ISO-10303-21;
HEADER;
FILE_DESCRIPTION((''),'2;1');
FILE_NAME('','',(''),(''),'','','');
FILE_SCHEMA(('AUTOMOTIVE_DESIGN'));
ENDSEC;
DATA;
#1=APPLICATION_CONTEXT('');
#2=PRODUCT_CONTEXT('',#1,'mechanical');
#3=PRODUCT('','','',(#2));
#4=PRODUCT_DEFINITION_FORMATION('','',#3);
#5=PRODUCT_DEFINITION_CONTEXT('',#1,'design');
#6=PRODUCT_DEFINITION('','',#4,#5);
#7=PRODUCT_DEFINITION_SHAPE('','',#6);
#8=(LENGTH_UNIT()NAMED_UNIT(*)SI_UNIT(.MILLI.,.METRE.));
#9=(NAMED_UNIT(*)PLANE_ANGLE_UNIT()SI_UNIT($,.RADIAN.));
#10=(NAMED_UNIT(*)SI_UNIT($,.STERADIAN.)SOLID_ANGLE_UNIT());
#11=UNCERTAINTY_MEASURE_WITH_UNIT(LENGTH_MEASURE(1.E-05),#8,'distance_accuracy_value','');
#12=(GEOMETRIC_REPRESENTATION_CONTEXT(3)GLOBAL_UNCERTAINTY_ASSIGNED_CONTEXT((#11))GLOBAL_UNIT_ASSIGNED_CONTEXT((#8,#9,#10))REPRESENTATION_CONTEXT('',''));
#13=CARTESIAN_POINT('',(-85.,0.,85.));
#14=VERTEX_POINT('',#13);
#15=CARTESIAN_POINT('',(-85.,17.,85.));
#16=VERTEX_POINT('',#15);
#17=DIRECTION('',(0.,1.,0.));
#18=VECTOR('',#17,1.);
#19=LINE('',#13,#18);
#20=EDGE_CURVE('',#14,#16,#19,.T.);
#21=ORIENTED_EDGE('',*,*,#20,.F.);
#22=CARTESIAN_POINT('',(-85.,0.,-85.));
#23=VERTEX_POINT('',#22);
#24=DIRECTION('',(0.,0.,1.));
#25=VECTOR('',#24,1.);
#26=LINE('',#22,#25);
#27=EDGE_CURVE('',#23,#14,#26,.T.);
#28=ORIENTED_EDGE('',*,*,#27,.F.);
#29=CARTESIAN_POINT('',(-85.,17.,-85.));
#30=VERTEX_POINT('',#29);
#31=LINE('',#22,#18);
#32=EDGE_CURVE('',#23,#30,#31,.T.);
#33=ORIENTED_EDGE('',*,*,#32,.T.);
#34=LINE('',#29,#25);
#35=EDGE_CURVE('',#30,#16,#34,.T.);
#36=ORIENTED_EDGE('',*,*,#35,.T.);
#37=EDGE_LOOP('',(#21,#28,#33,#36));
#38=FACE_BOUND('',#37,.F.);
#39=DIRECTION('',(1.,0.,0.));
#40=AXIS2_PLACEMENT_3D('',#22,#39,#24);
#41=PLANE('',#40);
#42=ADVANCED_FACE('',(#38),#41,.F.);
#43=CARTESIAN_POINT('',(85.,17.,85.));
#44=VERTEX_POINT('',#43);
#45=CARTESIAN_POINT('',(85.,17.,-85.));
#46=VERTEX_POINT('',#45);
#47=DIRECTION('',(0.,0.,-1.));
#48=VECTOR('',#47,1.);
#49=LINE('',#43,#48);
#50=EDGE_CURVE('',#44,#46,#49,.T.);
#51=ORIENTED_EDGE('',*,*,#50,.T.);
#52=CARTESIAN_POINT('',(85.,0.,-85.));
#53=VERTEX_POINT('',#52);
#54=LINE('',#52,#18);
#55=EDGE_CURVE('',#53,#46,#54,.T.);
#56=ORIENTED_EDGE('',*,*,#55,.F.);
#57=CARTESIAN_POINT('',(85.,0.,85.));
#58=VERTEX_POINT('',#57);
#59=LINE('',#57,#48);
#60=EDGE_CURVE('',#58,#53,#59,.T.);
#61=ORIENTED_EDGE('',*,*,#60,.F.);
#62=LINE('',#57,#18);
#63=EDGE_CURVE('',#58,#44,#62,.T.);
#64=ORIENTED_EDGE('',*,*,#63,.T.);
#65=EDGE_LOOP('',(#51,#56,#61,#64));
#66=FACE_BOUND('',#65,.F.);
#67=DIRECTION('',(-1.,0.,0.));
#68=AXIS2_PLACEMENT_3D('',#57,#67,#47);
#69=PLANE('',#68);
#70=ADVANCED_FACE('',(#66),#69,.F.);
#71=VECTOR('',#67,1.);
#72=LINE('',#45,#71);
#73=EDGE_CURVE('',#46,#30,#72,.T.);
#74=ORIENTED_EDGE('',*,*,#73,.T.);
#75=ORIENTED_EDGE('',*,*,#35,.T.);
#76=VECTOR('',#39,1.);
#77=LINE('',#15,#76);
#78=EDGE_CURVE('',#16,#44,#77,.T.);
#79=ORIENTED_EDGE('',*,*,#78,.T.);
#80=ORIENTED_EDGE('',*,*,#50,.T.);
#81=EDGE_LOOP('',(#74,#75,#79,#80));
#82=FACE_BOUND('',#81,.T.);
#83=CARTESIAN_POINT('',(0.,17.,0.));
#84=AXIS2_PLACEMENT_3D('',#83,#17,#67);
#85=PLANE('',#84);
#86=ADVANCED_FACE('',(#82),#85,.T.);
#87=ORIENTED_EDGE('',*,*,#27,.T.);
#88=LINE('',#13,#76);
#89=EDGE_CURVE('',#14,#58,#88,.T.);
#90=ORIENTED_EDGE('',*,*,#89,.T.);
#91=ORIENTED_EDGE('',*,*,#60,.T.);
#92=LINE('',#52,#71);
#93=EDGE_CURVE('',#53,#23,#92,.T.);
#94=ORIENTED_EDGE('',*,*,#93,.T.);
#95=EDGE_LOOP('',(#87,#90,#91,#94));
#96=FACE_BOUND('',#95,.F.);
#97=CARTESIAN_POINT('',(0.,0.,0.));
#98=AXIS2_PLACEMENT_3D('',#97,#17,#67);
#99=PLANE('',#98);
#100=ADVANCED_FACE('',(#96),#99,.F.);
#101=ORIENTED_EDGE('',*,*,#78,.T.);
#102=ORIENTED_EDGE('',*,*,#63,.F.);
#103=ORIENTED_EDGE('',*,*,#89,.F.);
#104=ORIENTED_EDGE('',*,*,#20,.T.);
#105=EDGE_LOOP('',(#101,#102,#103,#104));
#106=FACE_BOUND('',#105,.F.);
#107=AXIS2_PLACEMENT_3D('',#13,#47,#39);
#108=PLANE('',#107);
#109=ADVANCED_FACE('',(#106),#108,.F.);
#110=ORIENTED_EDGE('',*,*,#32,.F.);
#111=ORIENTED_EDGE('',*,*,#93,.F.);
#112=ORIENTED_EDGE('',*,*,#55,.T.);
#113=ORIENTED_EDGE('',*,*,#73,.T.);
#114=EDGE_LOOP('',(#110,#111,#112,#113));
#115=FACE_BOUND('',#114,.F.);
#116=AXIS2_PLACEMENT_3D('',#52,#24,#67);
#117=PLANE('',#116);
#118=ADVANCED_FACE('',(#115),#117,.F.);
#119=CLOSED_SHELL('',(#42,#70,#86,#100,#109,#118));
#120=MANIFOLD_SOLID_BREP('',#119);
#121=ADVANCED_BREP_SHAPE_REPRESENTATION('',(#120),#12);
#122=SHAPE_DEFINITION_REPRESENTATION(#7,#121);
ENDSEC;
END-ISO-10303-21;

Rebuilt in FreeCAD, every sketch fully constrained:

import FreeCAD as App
import Part
import Sketcher
from FreeCAD import Vector


def add_polygon(sketch, points):
    """Adds a closed chain of lines whose ends are joined by coincident constraints."""
    first, n = sketch.GeometryCount, len(points)
    for a, b in zip(points, points[1:] + points[:1]):
        sketch.addGeometry(Part.LineSegment(App.Vector(*a, 0), App.Vector(*b, 0)), False)
    for i in range(n):
        sketch.addConstraint(Sketcher.Constraint("Coincident", first + i, 2, first + (i + 1) % n, 1))

doc = App.newDocument("Part")
body = doc.addObject("PartDesign::Body", "Body")

# Sketch on XZ plane
sketch1 = body.newObject("Sketcher::SketchObject", "Sketch")
sketch1.AttachmentSupport = (doc.getObject("XZ_Plane"), [""])
sketch1.MapMode = "FlatFace"
add_polygon(sketch1, [(-85, -85), (-85, 85), (85, 85), (85, -85)])  # lines 0-3
sketch1.addConstraint(Sketcher.Constraint("Vertical", 0))
sketch1.addConstraint(Sketcher.Constraint("Horizontal", 1))
sketch1.addConstraint(Sketcher.Constraint("Vertical", 2))
sketch1.addConstraint(Sketcher.Constraint("Horizontal", 3))
sketch1.addConstraint(Sketcher.Constraint("Symmetric", 0, 2, 2, 2, -1, 1))
sketch1.addConstraint(Sketcher.Constraint("Equal", 3, 0))
sketch1.addConstraint(Sketcher.Constraint("DistanceX", 1, 1, 1, 2, 170.0))
pad1 = body.newObject("PartDesign::Pad", "Pad")
pad1.Profile = sketch1
pad1.Length = 17
pad1.Reversed = True

doc.recompute()
